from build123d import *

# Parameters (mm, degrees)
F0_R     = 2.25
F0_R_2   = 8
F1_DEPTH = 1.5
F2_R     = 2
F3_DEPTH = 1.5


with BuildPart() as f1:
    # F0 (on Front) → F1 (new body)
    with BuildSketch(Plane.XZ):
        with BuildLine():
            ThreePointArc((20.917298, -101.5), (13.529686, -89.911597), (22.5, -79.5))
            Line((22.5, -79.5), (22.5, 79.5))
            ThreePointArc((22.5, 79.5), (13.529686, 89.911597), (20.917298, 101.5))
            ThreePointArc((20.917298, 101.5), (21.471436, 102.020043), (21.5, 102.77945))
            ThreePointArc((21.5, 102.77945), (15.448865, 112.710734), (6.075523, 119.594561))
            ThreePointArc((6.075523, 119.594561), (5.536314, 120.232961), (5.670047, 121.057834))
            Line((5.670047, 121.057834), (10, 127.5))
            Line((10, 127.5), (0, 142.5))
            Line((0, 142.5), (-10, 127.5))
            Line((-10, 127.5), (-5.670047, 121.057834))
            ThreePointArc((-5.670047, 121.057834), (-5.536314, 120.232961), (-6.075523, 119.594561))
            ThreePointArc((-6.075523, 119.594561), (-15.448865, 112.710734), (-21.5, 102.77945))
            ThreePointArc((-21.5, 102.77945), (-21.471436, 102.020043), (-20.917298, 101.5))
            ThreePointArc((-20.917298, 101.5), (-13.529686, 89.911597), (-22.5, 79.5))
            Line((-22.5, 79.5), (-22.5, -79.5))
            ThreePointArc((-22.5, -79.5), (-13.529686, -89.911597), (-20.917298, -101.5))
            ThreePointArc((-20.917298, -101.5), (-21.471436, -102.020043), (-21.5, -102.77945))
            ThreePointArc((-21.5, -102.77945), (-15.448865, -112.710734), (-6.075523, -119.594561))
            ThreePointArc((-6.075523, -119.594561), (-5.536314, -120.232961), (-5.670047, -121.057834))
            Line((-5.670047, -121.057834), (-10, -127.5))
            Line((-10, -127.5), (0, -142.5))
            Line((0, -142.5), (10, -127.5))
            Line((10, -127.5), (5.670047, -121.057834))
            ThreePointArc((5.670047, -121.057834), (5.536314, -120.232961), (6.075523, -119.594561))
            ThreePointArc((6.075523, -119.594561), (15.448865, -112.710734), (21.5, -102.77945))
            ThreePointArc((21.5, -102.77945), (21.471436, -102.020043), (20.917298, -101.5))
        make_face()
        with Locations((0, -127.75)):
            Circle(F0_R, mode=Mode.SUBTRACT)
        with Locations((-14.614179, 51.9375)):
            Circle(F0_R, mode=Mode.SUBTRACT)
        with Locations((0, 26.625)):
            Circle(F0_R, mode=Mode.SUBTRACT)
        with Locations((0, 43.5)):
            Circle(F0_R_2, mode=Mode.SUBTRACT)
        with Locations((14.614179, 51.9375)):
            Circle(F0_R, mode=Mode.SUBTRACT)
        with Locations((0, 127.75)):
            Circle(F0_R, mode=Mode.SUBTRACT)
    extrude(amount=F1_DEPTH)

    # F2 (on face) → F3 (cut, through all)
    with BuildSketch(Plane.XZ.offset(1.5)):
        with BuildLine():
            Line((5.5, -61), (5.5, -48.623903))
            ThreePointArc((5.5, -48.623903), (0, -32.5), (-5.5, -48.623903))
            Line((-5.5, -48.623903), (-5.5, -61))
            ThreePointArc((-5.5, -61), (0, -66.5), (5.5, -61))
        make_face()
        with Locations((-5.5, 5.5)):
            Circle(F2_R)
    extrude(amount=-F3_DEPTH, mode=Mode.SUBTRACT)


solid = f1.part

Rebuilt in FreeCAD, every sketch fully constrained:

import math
import FreeCAD as App
import Part
import Sketcher
from FreeCAD import Vector
Q = App.Units.Quantity

doc = App.newDocument("Part")
params = doc.addObject("Spreadsheet::Sheet", "Params")
for row, (alias, value) in enumerate([
    ("sketch1_diameter", "16 mm"),
    ("sketch1_radius", "0.999999 mm"),
    ("sketch1_radius2", "30.000001 mm"),
    ("sketch1_diameter2", "4.5 mm"),
    ("sketch1_height", "159 mm"),
    ("pad1_length", "1.5 mm"),
    ("sketch2_diameter", "4 mm"),
    ("sketch2_radius", "9 mm"),
    ("sketch2_radius2", "5.5 mm"),
], start=1):
    params.set(f"A{row}", alias)
    params.set(f"B{row}", "=" + value)
    params.setAlias(f"B{row}", alias)

body = doc.addObject("PartDesign::Body", "Body")

# Sketch on XZ plane
sketch1 = body.newObject("Sketcher::SketchObject", "Sketch")
sketch1.AttachmentSupport = (doc.getObject("XZ_Plane"), [""])
sketch1.MapMode = "FlatFace"
sketch1.addGeometry(Part.ArcOfCircle(Part.Circle(Vector(25, -90.7, 0), Vector(0, 0, 1), 11.5), math.radians(103), math.radians(249)), False)
sketch1.addGeometry(Part.LineSegment(Vector(22.5, -79.5, 0), Vector(22.5, 79.5, 0)), False)
sketch1.addGeometry(Part.ArcOfCircle(Part.Circle(Vector(25, 90.7, 0), Vector(0, 0, 1), 11.5), math.radians(111), math.radians(257)), False)
sketch1.addGeometry(Part.ArcOfCircle(Part.Circle(Vector(20.6, 102.4, 0), Vector(0, 0, 1), 1), math.radians(-69), math.radians(20)), False)
sketch1.addGeometry(Part.ArcOfCircle(Part.Circle(Vector(-6.7, 92.4, 0), Vector(0, 0, 1), 30), math.radians(20), math.radians(65)), False)
sketch1.addGeometry(Part.ArcOfCircle(Part.Circle(Vector(6.5, 120.5, 0), Vector(0, 0, 1), 1), math.radians(146), math.radians(245)), False)
sketch1.addGeometry(Part.LineSegment(Vector(5.7, 121.1, 0), Vector(10, 127.5, 0)), False)
sketch1.addGeometry(Part.LineSegment(Vector(10, 127.5, 0), Vector(0, 142.5, 0)), False)
sketch1.addGeometry(Part.LineSegment(Vector(0, 142.5, 0), Vector(-10, 127.5, 0)), False)
sketch1.addGeometry(Part.LineSegment(Vector(-10, 127.5, 0), Vector(-5.7, 121.1, 0)), False)
sketch1.addGeometry(Part.ArcOfCircle(Part.Circle(Vector(-6.5, 120.5, 0), Vector(0, 0, 1), 1), math.radians(-65), math.radians(34)), False)
sketch1.addGeometry(Part.ArcOfCircle(Part.Circle(Vector(6.7, 92.4, 0), Vector(0, 0, 1), 30), math.radians(115), math.radians(160)), False)
sketch1.addGeometry(Part.ArcOfCircle(Part.Circle(Vector(-20.6, 102.4, 0), Vector(0, 0, 1), 1), math.radians(160), math.radians(249)), False)
sketch1.addGeometry(Part.ArcOfCircle(Part.Circle(Vector(-25, 90.7, 0), Vector(0, 0, 1), 11.5), math.radians(-77), math.radians(69)), False)
sketch1.addGeometry(Part.LineSegment(Vector(-22.5, 79.5, 0), Vector(-22.5, -79.5, 0)), False)
sketch1.addGeometry(Part.ArcOfCircle(Part.Circle(Vector(-25, -90.7, 0), Vector(0, 0, 1), 11.5), math.radians(-69), math.radians(77)), False)
sketch1.addGeometry(Part.ArcOfCircle(Part.Circle(Vector(-20.6, -102.4, 0), Vector(0, 0, 1), 1), math.radians(111), math.radians(200)), False)
sketch1.addGeometry(Part.ArcOfCircle(Part.Circle(Vector(6.7, -92.4, 0), Vector(0, 0, 1), 30), math.radians(-160), math.radians(-115)), False)
sketch1.addGeometry(Part.ArcOfCircle(Part.Circle(Vector(-6.5, -120.5, 0), Vector(0, 0, 1), 1), math.radians(-34), math.radians(65)), False)
sketch1.addGeometry(Part.LineSegment(Vector(-5.7, -121.1, 0), Vector(-10, -127.5, 0)), False)
sketch1.addGeometry(Part.LineSegment(Vector(-10, -127.5, 0), Vector(0, -142.5, 0)), False)
sketch1.addGeometry(Part.LineSegment(Vector(0, -142.5, 0), Vector(10, -127.5, 0)), False)
sketch1.addGeometry(Part.LineSegment(Vector(10, -127.5, 0), Vector(5.7, -121.1, 0)), False)
sketch1.addGeometry(Part.ArcOfCircle(Part.Circle(Vector(6.5, -120.5, 0), Vector(0, 0, 1), 1), math.radians(115), math.radians(214)), False)
sketch1.addGeometry(Part.ArcOfCircle(Part.Circle(Vector(-6.7, -92.4, 0), Vector(0, 0, 1), 30), math.radians(-65), math.radians(-20)), False)
sketch1.addGeometry(Part.ArcOfCircle(Part.Circle(Vector(20.6, -102.4, 0), Vector(0, 0, 1), 1), math.radians(-20), math.radians(69)), False)
sketch1.addGeometry(Part.Circle(Vector(0, -127.8, 0), Vector(0, 0, 1), 2.2), False)
sketch1.addGeometry(Part.Circle(Vector(-14.6, 51.9, 0), Vector(0, 0, 1), 2.2), False)
sketch1.addGeometry(Part.Circle(Vector(0, 26.6, 0), Vector(0, 0, 1), 2.2), False)
sketch1.addGeometry(Part.Circle(Vector(0, 43.5, 0), Vector(0, 0, 1), 8), False)
sketch1.addGeometry(Part.Circle(Vector(14.6, 51.9, 0), Vector(0, 0, 1), 2.2), False)
sketch1.addGeometry(Part.Circle(Vector(0, 127.8, 0), Vector(0, 0, 1), 2.2), False)
sketch1.addConstraint(Sketcher.Constraint("Coincident", 0, 1, 1, 1))
sketch1.addConstraint(Sketcher.Constraint("Coincident", 1, 2, 2, 2))
sketch1.addConstraint(Sketcher.Constraint("Tangent", 2, 1, 3, 1))
sketch1.addConstraint(Sketcher.Constraint("Tangent", 3, 2, 4, 1))
sketch1.addConstraint(Sketcher.Constraint("Tangent", 4, 2, 5, 2))
sketch1.addConstraint(Sketcher.Constraint("Tangent", 5, 1, 6, 1))
sketch1.addConstraint(Sketcher.Constraint("Coincident", 6, 2, 7, 1))
sketch1.addConstraint(Sketcher.Constraint("Coincident", 7, 2, 8, 1))
sketch1.addConstraint(Sketcher.Constraint("Coincident", 8, 2, 9, 1))
sketch1.addConstraint(Sketcher.Constraint("Tangent", 9, 2, 10, 2))
sketch1.addConstraint(Sketcher.Constraint("Tangent", 10, 1, 11, 1))
sketch1.addConstraint(Sketcher.Constraint("Tangent", 11, 2, 12, 1))
sketch1.addConstraint(Sketcher.Constraint("Tangent", 12, 2, 13, 2))
sketch1.addConstraint(Sketcher.Constraint("Coincident", 13, 1, 14, 1))
sketch1.addConstraint(Sketcher.Constraint("Coincident", 14, 2, 15, 2))
sketch1.addConstraint(Sketcher.Constraint("Tangent", 15, 1, 16, 1))
sketch1.addConstraint(Sketcher.Constraint("Tangent", 16, 2, 17, 1))
sketch1.addConstraint(Sketcher.Constraint("Tangent", 17, 2, 18, 2))
sketch1.addConstraint(Sketcher.Constraint("Tangent", 18, 1, 19, 1))
sketch1.addConstraint(Sketcher.Constraint("Coincident", 19, 2, 20, 1))
sketch1.addConstraint(Sketcher.Constraint("Coincident", 20, 2, 21, 1))
sketch1.addConstraint(Sketcher.Constraint("Coincident", 21, 2, 22, 1))
sketch1.addConstraint(Sketcher.Constraint("Tangent", 22, 2, 23, 2))
sketch1.addConstraint(Sketcher.Constraint("Tangent", 23, 1, 24, 1))
sketch1.addConstraint(Sketcher.Constraint("Tangent", 24, 2, 25, 1))
sketch1.addConstraint(Sketcher.Constraint("Tangent", 25, 2, 0, 2))
sketch1.addConstraint(Sketcher.Constraint("Vertical", 1))
sketch1.addConstraint(Sketcher.Constraint("Vertical", 14))
sketch1.addConstraint(Sketcher.Constraint("Equal", 0, 2))
sketch1.addConstraint(Sketcher.Constraint("Equal", 3, 5))
sketch1.addConstraint(Sketcher.Constraint("Equal", 5, 10))
sketch1.addConstraint(Sketcher.Constraint("Equal", 4, 11))
sketch1.addConstraint(Sketcher.Constraint("Equal", 10, 12))
sketch1.addConstraint(Sketcher.Constraint("Equal", 2, 13))
sketch1.addConstraint(Sketcher.Constraint("Equal", 13, 15))
sketch1.addConstraint(Sketcher.Constraint("Equal", 12, 16))
sketch1.addConstraint(Sketcher.Constraint("Equal", 11, 17))
sketch1.addConstraint(Sketcher.Constraint("Equal", 16, 18))
sketch1.addConstraint(Sketcher.Constraint("Equal", 18, 23))
sketch1.addConstraint(Sketcher.Constraint("Equal", 17, 24))
sketch1.addConstraint(Sketcher.Constraint("Equal", 23, 25))
sketch1.addConstraint(Sketcher.Constraint("Equal", 26, 27))
sketch1.addConstraint(Sketcher.Constraint("Equal", 27, 28))
sketch1.addConstraint(Sketcher.Constraint("Equal", 28, 30))
sketch1.addConstraint(Sketcher.Constraint("Equal", 30, 31))
sketch1.addConstraint(Sketcher.Constraint("Symmetric", 0, 3, 13, 3, -1, 1))
sketch1.addConstraint(Sketcher.Constraint("Symmetric", 2, 3, 15, 3, -1, 1))
sketch1.addConstraint(Sketcher.Constraint("Symmetric", 4, 3, 17, 3, -1, 1))
sketch1.addConstraint(Sketcher.Constraint("Symmetric", 10, 3, 23, 3, -1, 1))
sketch1.addConstraint(Sketcher.Constraint("Symmetric", 26, 3, 31, 3, -1, 1))
sketch1.addConstraint(Sketcher.Constraint("Symmetric", 5, 1, 18, 1, -1, 1))
sketch1.addConstraint(Sketcher.Constraint("Symmetric", 7, 2, 20, 2, -1, 1))
sketch1.addConstraint(Sketcher.Constraint("Symmetric", 8, 2, 21, 2, -1, 1))
sketch1.addConstraint(Sketcher.Constraint("Symmetric", 5, 3, 10, 3, -2))
sketch1.addConstraint(Sketcher.Constraint("Symmetric", 3, 3, 12, 3, -2))
sketch1.addConstraint(Sketcher.Constraint("Symmetric", 27, 3, 30, 3, -2))
sketch1.addConstraint(Sketcher.Constraint("Symmetric", 6, 2, 8, 2, -2))
sketch1.addConstraint(Sketcher.Constraint("Symmetric", 1, 2, 13, 1, -2))
sketch1.addConstraint(Sketcher.Constraint("PointOnObject", 26, 3, -2))
sketch1.addConstraint(Sketcher.Constraint("PointOnObject", 28, 3, -2))
sketch1.addConstraint(Sketcher.Constraint("PointOnObject", 29, 3, -2))
sketch1.addConstraint(Sketcher.Constraint("PointOnObject", 7, 2, -2))
sketch1.addConstraint(Sketcher.Constraint("Parallel", 7, 20))
sketch1.addConstraint(Sketcher.Constraint("Horizontal", 17, 3, 24, 3))
sketch1.addConstraint(Sketcher.Constraint("Diameter", 29, Q("16 mm")))
sketch1.addConstraint(Sketcher.Constraint("Radius", 3, Q("0.999999 mm")))
sketch1.addConstraint(Sketcher.Constraint("Radius", 4, Q("30.000001 mm")))
sketch1.addConstraint(Sketcher.Constraint("Diameter", 26, Q("4.5 mm")))
sketch1.addConstraint(Sketcher.Constraint("DistanceY", 1, 1, 1, 2, Q("159 mm")))
sketch1.addConstraint(Sketcher.Constraint("DistanceX", -1, 1, 6, 2, Q("10 mm")))
sketch1.addConstraint(Sketcher.Constraint("DistanceX", 10, 3, 5, 3, Q("13 mm")))
sketch1.addConstraint(Sketcher.Constraint("DistanceX", 23, 3, 0, 1, Q("16 mm")))
sketch1.addConstraint(Sketcher.Constraint("DistanceY", 23, 3, 0, 1, Q("41 mm")))
sketch1.addConstraint(Sketcher.Constraint("DistanceY", 1, 2, 2, 1, Q("22 mm")))
sketch1.addConstraint(Sketcher.Constraint("DistanceX", 5, 3, 3, 2, Q("15 mm")))
sketch1.addConstraint(Sketcher.Constraint("DistanceY", 5, 3, 6, 2, Q("7 mm")))
sketch1.addConstraint(Sketcher.Constraint("DistanceY", 6, 2, 7, 2, Q("15 mm")))
sketch1.addConstraint(Sketcher.Constraint("DistanceY", -1, 1, 29, 3, Q("43.5 mm")))
sketch1.addConstraint(Sketcher.Constraint("DistanceY", 26, 3, -1, 1, Q("127.75 mm")))
sketch1.addConstraint(Sketcher.Constraint("DistanceY", -1, 1, 28, 3, Q("26.625 mm")))
sketch1.addConstraint(Sketcher.Constraint("Radius", 0, Q("11.516193 mm")))
sketch1.addConstraint(Sketcher.Constraint("DistanceY", -1, 1, 27, 3, Q("51.9375 mm")))
sketch1.addConstraint(Sketcher.Constraint("DistanceX", 27, 3, -1, 1, Q("14.614179 mm")))
sketch1.setExpression("Constraints[64]", "Params.sketch1_diameter")
sketch1.setExpression("Constraints[65]", "Params.sketch1_radius")
sketch1.setExpression("Constraints[66]", "Params.sketch1_radius2")
sketch1.setExpression("Constraints[67]", "Params.sketch1_diameter2")
sketch1.setExpression("Constraints[68]", "Params.sketch1_height")
pad1 = body.newObject("PartDesign::Pad", "Pad")
pad1.Profile = sketch1
pad1.setExpression("Length", "Params.pad1_length")

# Sketch on XZ plane
sketch2 = body.newObject("Sketcher::SketchObject", "Sketch001")
sketch2.AttachmentSupport = (doc.getObject("XZ_Plane"), [""])
sketch2.MapMode = "FlatFace"
sketch2.AttachmentOffset = App.Placement(Vector(0, 0, 1.5), App.Rotation())
sketch2.addGeometry(Part.LineSegment(Vector(5.5, -61, 0), Vector(5.5, -48.6, 0)), False)
sketch2.addGeometry(Part.ArcOfCircle(Part.Circle(Vector(0, -41.5, 0), Vector(0, 0, 1), 9), math.radians(-52), math.radians(232)), False)
sketch2.addGeometry(Part.LineSegment(Vector(-5.5, -48.6, 0), Vector(-5.5, -61, 0)), False)
sketch2.addGeometry(Part.ArcOfCircle(Part.Circle(Vector(0, -61, 0), Vector(0, 0, 1), 5.5), math.radians(180), math.radians(360)), False)
sketch2.addGeometry(Part.Circle(Vector(-5.5, 5.5, 0), Vector(0, 0, 1), 2), False)
sketch2.addConstraint(Sketcher.Constraint("Coincident", 0, 2, 1, 1))
sketch2.addConstraint(Sketcher.Constraint("Coincident", 1, 2, 2, 1))
sketch2.addConstraint(Sketcher.Constraint("Tangent", 2, 2, 3, 1))
sketch2.addConstraint(Sketcher.Constraint("Tangent", 3, 2, 0, 1))
sketch2.addConstraint(Sketcher.Constraint("Vertical", 0))
sketch2.addConstraint(Sketcher.Constraint("Vertical", 2))
sketch2.addConstraint(Sketcher.Constraint("Symmetric", 0, 2, 1, 2, -2))
sketch2.addConstraint(Sketcher.Constraint("Vertical", 4, 3, 1, 2))
sketch2.addConstraint(Sketcher.Constraint("Diameter", 4, Q("4 mm")))
sketch2.addConstraint(Sketcher.Constraint("Radius", 1, Q("9 mm")))
sketch2.addConstraint(Sketcher.Constraint("Radius", 3, Q("5.5 mm")))
sketch2.addConstraint(Sketcher.Constraint("DistanceY", 3, 3, -1, 1, Q("61 mm")))
sketch2.addConstraint(Sketcher.Constraint("DistanceY", 1, 3, 4, 3, Q("47 mm")))
sketch2.addConstraint(Sketcher.Constraint("DistanceY", 1, 3, -1, 1, Q("41.5 mm")))
sketch2.setExpression("Constraints[8]", "Params.sketch2_diameter")
sketch2.setExpression("Constraints[9]", "Params.sketch2_radius")
sketch2.setExpression("Constraints[10]", "Params.sketch2_radius2")
pocket1 = body.newObject("PartDesign::Pocket", "Pocket")
pocket1.Profile = sketch2
pocket1.Type = "ThroughAll"

doc.recompute()
